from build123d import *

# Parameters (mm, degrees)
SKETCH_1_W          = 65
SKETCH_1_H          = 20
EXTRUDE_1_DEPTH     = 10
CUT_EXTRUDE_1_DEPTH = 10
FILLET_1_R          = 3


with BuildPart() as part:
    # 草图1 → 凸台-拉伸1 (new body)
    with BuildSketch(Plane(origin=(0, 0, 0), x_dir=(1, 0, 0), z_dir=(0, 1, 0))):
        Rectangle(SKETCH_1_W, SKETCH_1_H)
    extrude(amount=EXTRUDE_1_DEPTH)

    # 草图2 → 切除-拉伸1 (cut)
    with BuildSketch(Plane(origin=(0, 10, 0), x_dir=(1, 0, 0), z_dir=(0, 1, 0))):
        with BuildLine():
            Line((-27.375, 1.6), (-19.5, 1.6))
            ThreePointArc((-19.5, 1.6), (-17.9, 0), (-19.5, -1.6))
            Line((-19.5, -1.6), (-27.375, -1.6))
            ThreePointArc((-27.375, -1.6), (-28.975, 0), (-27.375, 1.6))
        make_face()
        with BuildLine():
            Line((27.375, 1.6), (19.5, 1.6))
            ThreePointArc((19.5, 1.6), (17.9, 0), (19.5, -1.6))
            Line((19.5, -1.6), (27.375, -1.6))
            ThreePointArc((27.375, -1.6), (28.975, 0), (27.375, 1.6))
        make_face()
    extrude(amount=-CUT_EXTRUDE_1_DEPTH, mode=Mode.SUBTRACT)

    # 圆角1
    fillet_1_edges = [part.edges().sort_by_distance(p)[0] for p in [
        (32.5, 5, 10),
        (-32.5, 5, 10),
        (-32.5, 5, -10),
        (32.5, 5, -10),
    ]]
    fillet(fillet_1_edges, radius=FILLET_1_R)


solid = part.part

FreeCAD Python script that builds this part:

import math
import FreeCAD as App
import Part
import Sketcher


def edges_at(feature, points):
    """Names of the edges that pass closest to the given points."""
    edges = feature.Shape.Edges
    near = lambda p: min(range(len(edges)), key=lambda i: edges[i].distToShape(Part.Vertex(*p))[0])
    return sorted({f"Edge{near(p) + 1}" for p in points})


def add_polygon(sketch, points):
    """Adds a closed chain of lines whose ends are joined by coincident constraints."""
    first, n = sketch.GeometryCount, len(points)
    for a, b in zip(points, points[1:] + points[:1]):
        sketch.addGeometry(Part.LineSegment(App.Vector(*a, 0), App.Vector(*b, 0)), False)
    for i in range(n):
        sketch.addConstraint(Sketcher.Constraint("Coincident", first + i, 2, first + (i + 1) % n, 1))

doc = App.newDocument("Part")
params = doc.addObject("Spreadsheet::Sheet", "Params")
for row, (alias, value) in enumerate([
    ("sketch1_width", "65 mm"),
    ("sketch1_height", "20 mm"),
    ("pad1_length", "10 mm"),
    ("sketch2_radius", "1.6 mm"),
    ("pocket1_length", "10 mm"),
    ("fillet_radius", "3 mm"),
], start=1):
    params.set(f"A{row}", alias)
    params.set(f"B{row}", "=" + value)
    params.setAlias(f"B{row}", alias)

body = doc.addObject("PartDesign::Body", "Body")

# Sketch on XZ plane
sketch1 = body.newObject("Sketcher::SketchObject", "Sketch")
sketch1.AttachmentSupport = (doc.getObject("XZ_Plane"), [""])
sketch1.MapMode = "FlatFace"
add_polygon(sketch1, [(-32, -10), (-32, 10), (32, 10), (32, -10)])  # lines 0-3
sketch1.addConstraint(Sketcher.Constraint("Vertical", 0))
sketch1.addConstraint(Sketcher.Constraint("Horizontal", 1))
sketch1.addConstraint(Sketcher.Constraint("Vertical", 2))
sketch1.addConstraint(Sketcher.Constraint("Horizontal", 3))
sketch1.addConstraint(Sketcher.Constraint("Symmetric", 0, 2, 2, 2, -1, 1))
sketch1.addConstraint(Sketcher.Constraint("DistanceX", 1, 1, 1, 2, 65.0))
sketch1.addConstraint(Sketcher.Constraint("DistanceY", 0, 1, 0, 2, 20.0))
sketch1.setExpression("Constraints[9]", "Params.sketch1_width")
sketch1.setExpression("Constraints[10]", "Params.sketch1_height")
pad1 = body.newObject("PartDesign::Pad", "Pad")
pad1.Profile = sketch1
pad1.setExpression("Length", "Params.pad1_length")
pad1.Reversed = True

# Sketch on XZ plane
sketch2 = body.newObject("Sketcher::SketchObject", "Sketch001")
sketch2.AttachmentSupport = (doc.getObject("XZ_Plane"), [""])
sketch2.MapMode = "FlatFace"
sketch2.AttachmentOffset = App.Placement(App.Vector(0, 0, -10), App.Rotation())
sketch2.addGeometry(Part.LineSegment(App.Vector(-19.5, -1.6, 0), App.Vector(-27.4, -1.6, 0)), False)
sketch2.addGeometry(Part.ArcOfCircle(Part.Circle(App.Vector(-27.4, 0, 0), App.Vector(0, 0, 1), 1.6), math.radians(90), math.radians(270)), False)
sketch2.addGeometry(Part.LineSegment(App.Vector(-27.4, 1.6, 0), App.Vector(-19.5, 1.6, 0)), False)
sketch2.addGeometry(Part.ArcOfCircle(Part.Circle(App.Vector(-19.5, 0, 0), App.Vector(0, 0, 1), 1.6), math.radians(-90), math.radians(90)), False)
sketch2.addGeometry(Part.LineSegment(App.Vector(27.4, -1.6, 0), App.Vector(19.5, -1.6, 0)), False)
sketch2.addGeometry(Part.ArcOfCircle(Part.Circle(App.Vector(19.5, 0, 0), App.Vector(0, 0, 1), 1.6), math.radians(90), math.radians(270)), False)
sketch2.addGeometry(Part.LineSegment(App.Vector(19.5, 1.6, 0), App.Vector(27.4, 1.6, 0)), False)
sketch2.addGeometry(Part.ArcOfCircle(Part.Circle(App.Vector(27.4, 0, 0), App.Vector(0, 0, 1), 1.6), math.radians(-90), math.radians(90)), False)
sketch2.addConstraint(Sketcher.Constraint("Tangent", 0, 2, 1, 2))
sketch2.addConstraint(Sketcher.Constraint("Tangent", 1, 1, 2, 1))
sketch2.addConstraint(Sketcher.Constraint("Tangent", 2, 2, 3, 2))
sketch2.addConstraint(Sketcher.Constraint("Tangent", 3, 1, 0, 1))
sketch2.addConstraint(Sketcher.Constraint("Tangent", 4, 2, 5, 2))
sketch2.addConstraint(Sketcher.Constraint("Tangent", 5, 1, 6, 1))
sketch2.addConstraint(Sketcher.Constraint("Tangent", 6, 2, 7, 2))
sketch2.addConstraint(Sketcher.Constraint("Tangent", 7, 1, 4, 1))
sketch2.addConstraint(Sketcher.Constraint("Horizontal", 0))
sketch2.addConstraint(Sketcher.Constraint("Horizontal", 2))
sketch2.addConstraint(Sketcher.Constraint("Horizontal", 4))
sketch2.addConstraint(Sketcher.Constraint("Horizontal", 6))
sketch2.addConstraint(Sketcher.Constraint("Equal", 3, 5))
sketch2.addConstraint(Sketcher.Constraint("Symmetric", 3, 3, 5, 3, -1, 1))
sketch2.addConstraint(Sketcher.Constraint("Symmetric", 1, 3, 7, 3, -2))
sketch2.addConstraint(Sketcher.Constraint("Radius", 1, 1.6))
sketch2.addConstraint(Sketcher.Constraint("DistanceX", 3, 3, 5, 3, 39.0))
sketch2.addConstraint(Sketcher.Constraint("DistanceX", 0, 2, 0, 1, 7.875))
sketch2.setExpression("Constraints[15]", "Params.sketch2_radius")
pocket1 = body.newObject("PartDesign::Pocket", "Pocket")
pocket1.Profile = sketch2
pocket1.setExpression("Length", "Params.pocket1_length")
pocket1.Reversed = True
doc.recompute()

fillet = body.newObject("PartDesign::Fillet", "Fillet")
fillet.Base = (pocket1, edges_at(pocket1, [
    (32.5, 5, 10),
    (-32.5, 5, 10),
    (-32.5, 5, -10),
    (32.5, 5, -10),
]))
fillet.setExpression("Radius", "Params.fillet_radius")

doc.recompute()
